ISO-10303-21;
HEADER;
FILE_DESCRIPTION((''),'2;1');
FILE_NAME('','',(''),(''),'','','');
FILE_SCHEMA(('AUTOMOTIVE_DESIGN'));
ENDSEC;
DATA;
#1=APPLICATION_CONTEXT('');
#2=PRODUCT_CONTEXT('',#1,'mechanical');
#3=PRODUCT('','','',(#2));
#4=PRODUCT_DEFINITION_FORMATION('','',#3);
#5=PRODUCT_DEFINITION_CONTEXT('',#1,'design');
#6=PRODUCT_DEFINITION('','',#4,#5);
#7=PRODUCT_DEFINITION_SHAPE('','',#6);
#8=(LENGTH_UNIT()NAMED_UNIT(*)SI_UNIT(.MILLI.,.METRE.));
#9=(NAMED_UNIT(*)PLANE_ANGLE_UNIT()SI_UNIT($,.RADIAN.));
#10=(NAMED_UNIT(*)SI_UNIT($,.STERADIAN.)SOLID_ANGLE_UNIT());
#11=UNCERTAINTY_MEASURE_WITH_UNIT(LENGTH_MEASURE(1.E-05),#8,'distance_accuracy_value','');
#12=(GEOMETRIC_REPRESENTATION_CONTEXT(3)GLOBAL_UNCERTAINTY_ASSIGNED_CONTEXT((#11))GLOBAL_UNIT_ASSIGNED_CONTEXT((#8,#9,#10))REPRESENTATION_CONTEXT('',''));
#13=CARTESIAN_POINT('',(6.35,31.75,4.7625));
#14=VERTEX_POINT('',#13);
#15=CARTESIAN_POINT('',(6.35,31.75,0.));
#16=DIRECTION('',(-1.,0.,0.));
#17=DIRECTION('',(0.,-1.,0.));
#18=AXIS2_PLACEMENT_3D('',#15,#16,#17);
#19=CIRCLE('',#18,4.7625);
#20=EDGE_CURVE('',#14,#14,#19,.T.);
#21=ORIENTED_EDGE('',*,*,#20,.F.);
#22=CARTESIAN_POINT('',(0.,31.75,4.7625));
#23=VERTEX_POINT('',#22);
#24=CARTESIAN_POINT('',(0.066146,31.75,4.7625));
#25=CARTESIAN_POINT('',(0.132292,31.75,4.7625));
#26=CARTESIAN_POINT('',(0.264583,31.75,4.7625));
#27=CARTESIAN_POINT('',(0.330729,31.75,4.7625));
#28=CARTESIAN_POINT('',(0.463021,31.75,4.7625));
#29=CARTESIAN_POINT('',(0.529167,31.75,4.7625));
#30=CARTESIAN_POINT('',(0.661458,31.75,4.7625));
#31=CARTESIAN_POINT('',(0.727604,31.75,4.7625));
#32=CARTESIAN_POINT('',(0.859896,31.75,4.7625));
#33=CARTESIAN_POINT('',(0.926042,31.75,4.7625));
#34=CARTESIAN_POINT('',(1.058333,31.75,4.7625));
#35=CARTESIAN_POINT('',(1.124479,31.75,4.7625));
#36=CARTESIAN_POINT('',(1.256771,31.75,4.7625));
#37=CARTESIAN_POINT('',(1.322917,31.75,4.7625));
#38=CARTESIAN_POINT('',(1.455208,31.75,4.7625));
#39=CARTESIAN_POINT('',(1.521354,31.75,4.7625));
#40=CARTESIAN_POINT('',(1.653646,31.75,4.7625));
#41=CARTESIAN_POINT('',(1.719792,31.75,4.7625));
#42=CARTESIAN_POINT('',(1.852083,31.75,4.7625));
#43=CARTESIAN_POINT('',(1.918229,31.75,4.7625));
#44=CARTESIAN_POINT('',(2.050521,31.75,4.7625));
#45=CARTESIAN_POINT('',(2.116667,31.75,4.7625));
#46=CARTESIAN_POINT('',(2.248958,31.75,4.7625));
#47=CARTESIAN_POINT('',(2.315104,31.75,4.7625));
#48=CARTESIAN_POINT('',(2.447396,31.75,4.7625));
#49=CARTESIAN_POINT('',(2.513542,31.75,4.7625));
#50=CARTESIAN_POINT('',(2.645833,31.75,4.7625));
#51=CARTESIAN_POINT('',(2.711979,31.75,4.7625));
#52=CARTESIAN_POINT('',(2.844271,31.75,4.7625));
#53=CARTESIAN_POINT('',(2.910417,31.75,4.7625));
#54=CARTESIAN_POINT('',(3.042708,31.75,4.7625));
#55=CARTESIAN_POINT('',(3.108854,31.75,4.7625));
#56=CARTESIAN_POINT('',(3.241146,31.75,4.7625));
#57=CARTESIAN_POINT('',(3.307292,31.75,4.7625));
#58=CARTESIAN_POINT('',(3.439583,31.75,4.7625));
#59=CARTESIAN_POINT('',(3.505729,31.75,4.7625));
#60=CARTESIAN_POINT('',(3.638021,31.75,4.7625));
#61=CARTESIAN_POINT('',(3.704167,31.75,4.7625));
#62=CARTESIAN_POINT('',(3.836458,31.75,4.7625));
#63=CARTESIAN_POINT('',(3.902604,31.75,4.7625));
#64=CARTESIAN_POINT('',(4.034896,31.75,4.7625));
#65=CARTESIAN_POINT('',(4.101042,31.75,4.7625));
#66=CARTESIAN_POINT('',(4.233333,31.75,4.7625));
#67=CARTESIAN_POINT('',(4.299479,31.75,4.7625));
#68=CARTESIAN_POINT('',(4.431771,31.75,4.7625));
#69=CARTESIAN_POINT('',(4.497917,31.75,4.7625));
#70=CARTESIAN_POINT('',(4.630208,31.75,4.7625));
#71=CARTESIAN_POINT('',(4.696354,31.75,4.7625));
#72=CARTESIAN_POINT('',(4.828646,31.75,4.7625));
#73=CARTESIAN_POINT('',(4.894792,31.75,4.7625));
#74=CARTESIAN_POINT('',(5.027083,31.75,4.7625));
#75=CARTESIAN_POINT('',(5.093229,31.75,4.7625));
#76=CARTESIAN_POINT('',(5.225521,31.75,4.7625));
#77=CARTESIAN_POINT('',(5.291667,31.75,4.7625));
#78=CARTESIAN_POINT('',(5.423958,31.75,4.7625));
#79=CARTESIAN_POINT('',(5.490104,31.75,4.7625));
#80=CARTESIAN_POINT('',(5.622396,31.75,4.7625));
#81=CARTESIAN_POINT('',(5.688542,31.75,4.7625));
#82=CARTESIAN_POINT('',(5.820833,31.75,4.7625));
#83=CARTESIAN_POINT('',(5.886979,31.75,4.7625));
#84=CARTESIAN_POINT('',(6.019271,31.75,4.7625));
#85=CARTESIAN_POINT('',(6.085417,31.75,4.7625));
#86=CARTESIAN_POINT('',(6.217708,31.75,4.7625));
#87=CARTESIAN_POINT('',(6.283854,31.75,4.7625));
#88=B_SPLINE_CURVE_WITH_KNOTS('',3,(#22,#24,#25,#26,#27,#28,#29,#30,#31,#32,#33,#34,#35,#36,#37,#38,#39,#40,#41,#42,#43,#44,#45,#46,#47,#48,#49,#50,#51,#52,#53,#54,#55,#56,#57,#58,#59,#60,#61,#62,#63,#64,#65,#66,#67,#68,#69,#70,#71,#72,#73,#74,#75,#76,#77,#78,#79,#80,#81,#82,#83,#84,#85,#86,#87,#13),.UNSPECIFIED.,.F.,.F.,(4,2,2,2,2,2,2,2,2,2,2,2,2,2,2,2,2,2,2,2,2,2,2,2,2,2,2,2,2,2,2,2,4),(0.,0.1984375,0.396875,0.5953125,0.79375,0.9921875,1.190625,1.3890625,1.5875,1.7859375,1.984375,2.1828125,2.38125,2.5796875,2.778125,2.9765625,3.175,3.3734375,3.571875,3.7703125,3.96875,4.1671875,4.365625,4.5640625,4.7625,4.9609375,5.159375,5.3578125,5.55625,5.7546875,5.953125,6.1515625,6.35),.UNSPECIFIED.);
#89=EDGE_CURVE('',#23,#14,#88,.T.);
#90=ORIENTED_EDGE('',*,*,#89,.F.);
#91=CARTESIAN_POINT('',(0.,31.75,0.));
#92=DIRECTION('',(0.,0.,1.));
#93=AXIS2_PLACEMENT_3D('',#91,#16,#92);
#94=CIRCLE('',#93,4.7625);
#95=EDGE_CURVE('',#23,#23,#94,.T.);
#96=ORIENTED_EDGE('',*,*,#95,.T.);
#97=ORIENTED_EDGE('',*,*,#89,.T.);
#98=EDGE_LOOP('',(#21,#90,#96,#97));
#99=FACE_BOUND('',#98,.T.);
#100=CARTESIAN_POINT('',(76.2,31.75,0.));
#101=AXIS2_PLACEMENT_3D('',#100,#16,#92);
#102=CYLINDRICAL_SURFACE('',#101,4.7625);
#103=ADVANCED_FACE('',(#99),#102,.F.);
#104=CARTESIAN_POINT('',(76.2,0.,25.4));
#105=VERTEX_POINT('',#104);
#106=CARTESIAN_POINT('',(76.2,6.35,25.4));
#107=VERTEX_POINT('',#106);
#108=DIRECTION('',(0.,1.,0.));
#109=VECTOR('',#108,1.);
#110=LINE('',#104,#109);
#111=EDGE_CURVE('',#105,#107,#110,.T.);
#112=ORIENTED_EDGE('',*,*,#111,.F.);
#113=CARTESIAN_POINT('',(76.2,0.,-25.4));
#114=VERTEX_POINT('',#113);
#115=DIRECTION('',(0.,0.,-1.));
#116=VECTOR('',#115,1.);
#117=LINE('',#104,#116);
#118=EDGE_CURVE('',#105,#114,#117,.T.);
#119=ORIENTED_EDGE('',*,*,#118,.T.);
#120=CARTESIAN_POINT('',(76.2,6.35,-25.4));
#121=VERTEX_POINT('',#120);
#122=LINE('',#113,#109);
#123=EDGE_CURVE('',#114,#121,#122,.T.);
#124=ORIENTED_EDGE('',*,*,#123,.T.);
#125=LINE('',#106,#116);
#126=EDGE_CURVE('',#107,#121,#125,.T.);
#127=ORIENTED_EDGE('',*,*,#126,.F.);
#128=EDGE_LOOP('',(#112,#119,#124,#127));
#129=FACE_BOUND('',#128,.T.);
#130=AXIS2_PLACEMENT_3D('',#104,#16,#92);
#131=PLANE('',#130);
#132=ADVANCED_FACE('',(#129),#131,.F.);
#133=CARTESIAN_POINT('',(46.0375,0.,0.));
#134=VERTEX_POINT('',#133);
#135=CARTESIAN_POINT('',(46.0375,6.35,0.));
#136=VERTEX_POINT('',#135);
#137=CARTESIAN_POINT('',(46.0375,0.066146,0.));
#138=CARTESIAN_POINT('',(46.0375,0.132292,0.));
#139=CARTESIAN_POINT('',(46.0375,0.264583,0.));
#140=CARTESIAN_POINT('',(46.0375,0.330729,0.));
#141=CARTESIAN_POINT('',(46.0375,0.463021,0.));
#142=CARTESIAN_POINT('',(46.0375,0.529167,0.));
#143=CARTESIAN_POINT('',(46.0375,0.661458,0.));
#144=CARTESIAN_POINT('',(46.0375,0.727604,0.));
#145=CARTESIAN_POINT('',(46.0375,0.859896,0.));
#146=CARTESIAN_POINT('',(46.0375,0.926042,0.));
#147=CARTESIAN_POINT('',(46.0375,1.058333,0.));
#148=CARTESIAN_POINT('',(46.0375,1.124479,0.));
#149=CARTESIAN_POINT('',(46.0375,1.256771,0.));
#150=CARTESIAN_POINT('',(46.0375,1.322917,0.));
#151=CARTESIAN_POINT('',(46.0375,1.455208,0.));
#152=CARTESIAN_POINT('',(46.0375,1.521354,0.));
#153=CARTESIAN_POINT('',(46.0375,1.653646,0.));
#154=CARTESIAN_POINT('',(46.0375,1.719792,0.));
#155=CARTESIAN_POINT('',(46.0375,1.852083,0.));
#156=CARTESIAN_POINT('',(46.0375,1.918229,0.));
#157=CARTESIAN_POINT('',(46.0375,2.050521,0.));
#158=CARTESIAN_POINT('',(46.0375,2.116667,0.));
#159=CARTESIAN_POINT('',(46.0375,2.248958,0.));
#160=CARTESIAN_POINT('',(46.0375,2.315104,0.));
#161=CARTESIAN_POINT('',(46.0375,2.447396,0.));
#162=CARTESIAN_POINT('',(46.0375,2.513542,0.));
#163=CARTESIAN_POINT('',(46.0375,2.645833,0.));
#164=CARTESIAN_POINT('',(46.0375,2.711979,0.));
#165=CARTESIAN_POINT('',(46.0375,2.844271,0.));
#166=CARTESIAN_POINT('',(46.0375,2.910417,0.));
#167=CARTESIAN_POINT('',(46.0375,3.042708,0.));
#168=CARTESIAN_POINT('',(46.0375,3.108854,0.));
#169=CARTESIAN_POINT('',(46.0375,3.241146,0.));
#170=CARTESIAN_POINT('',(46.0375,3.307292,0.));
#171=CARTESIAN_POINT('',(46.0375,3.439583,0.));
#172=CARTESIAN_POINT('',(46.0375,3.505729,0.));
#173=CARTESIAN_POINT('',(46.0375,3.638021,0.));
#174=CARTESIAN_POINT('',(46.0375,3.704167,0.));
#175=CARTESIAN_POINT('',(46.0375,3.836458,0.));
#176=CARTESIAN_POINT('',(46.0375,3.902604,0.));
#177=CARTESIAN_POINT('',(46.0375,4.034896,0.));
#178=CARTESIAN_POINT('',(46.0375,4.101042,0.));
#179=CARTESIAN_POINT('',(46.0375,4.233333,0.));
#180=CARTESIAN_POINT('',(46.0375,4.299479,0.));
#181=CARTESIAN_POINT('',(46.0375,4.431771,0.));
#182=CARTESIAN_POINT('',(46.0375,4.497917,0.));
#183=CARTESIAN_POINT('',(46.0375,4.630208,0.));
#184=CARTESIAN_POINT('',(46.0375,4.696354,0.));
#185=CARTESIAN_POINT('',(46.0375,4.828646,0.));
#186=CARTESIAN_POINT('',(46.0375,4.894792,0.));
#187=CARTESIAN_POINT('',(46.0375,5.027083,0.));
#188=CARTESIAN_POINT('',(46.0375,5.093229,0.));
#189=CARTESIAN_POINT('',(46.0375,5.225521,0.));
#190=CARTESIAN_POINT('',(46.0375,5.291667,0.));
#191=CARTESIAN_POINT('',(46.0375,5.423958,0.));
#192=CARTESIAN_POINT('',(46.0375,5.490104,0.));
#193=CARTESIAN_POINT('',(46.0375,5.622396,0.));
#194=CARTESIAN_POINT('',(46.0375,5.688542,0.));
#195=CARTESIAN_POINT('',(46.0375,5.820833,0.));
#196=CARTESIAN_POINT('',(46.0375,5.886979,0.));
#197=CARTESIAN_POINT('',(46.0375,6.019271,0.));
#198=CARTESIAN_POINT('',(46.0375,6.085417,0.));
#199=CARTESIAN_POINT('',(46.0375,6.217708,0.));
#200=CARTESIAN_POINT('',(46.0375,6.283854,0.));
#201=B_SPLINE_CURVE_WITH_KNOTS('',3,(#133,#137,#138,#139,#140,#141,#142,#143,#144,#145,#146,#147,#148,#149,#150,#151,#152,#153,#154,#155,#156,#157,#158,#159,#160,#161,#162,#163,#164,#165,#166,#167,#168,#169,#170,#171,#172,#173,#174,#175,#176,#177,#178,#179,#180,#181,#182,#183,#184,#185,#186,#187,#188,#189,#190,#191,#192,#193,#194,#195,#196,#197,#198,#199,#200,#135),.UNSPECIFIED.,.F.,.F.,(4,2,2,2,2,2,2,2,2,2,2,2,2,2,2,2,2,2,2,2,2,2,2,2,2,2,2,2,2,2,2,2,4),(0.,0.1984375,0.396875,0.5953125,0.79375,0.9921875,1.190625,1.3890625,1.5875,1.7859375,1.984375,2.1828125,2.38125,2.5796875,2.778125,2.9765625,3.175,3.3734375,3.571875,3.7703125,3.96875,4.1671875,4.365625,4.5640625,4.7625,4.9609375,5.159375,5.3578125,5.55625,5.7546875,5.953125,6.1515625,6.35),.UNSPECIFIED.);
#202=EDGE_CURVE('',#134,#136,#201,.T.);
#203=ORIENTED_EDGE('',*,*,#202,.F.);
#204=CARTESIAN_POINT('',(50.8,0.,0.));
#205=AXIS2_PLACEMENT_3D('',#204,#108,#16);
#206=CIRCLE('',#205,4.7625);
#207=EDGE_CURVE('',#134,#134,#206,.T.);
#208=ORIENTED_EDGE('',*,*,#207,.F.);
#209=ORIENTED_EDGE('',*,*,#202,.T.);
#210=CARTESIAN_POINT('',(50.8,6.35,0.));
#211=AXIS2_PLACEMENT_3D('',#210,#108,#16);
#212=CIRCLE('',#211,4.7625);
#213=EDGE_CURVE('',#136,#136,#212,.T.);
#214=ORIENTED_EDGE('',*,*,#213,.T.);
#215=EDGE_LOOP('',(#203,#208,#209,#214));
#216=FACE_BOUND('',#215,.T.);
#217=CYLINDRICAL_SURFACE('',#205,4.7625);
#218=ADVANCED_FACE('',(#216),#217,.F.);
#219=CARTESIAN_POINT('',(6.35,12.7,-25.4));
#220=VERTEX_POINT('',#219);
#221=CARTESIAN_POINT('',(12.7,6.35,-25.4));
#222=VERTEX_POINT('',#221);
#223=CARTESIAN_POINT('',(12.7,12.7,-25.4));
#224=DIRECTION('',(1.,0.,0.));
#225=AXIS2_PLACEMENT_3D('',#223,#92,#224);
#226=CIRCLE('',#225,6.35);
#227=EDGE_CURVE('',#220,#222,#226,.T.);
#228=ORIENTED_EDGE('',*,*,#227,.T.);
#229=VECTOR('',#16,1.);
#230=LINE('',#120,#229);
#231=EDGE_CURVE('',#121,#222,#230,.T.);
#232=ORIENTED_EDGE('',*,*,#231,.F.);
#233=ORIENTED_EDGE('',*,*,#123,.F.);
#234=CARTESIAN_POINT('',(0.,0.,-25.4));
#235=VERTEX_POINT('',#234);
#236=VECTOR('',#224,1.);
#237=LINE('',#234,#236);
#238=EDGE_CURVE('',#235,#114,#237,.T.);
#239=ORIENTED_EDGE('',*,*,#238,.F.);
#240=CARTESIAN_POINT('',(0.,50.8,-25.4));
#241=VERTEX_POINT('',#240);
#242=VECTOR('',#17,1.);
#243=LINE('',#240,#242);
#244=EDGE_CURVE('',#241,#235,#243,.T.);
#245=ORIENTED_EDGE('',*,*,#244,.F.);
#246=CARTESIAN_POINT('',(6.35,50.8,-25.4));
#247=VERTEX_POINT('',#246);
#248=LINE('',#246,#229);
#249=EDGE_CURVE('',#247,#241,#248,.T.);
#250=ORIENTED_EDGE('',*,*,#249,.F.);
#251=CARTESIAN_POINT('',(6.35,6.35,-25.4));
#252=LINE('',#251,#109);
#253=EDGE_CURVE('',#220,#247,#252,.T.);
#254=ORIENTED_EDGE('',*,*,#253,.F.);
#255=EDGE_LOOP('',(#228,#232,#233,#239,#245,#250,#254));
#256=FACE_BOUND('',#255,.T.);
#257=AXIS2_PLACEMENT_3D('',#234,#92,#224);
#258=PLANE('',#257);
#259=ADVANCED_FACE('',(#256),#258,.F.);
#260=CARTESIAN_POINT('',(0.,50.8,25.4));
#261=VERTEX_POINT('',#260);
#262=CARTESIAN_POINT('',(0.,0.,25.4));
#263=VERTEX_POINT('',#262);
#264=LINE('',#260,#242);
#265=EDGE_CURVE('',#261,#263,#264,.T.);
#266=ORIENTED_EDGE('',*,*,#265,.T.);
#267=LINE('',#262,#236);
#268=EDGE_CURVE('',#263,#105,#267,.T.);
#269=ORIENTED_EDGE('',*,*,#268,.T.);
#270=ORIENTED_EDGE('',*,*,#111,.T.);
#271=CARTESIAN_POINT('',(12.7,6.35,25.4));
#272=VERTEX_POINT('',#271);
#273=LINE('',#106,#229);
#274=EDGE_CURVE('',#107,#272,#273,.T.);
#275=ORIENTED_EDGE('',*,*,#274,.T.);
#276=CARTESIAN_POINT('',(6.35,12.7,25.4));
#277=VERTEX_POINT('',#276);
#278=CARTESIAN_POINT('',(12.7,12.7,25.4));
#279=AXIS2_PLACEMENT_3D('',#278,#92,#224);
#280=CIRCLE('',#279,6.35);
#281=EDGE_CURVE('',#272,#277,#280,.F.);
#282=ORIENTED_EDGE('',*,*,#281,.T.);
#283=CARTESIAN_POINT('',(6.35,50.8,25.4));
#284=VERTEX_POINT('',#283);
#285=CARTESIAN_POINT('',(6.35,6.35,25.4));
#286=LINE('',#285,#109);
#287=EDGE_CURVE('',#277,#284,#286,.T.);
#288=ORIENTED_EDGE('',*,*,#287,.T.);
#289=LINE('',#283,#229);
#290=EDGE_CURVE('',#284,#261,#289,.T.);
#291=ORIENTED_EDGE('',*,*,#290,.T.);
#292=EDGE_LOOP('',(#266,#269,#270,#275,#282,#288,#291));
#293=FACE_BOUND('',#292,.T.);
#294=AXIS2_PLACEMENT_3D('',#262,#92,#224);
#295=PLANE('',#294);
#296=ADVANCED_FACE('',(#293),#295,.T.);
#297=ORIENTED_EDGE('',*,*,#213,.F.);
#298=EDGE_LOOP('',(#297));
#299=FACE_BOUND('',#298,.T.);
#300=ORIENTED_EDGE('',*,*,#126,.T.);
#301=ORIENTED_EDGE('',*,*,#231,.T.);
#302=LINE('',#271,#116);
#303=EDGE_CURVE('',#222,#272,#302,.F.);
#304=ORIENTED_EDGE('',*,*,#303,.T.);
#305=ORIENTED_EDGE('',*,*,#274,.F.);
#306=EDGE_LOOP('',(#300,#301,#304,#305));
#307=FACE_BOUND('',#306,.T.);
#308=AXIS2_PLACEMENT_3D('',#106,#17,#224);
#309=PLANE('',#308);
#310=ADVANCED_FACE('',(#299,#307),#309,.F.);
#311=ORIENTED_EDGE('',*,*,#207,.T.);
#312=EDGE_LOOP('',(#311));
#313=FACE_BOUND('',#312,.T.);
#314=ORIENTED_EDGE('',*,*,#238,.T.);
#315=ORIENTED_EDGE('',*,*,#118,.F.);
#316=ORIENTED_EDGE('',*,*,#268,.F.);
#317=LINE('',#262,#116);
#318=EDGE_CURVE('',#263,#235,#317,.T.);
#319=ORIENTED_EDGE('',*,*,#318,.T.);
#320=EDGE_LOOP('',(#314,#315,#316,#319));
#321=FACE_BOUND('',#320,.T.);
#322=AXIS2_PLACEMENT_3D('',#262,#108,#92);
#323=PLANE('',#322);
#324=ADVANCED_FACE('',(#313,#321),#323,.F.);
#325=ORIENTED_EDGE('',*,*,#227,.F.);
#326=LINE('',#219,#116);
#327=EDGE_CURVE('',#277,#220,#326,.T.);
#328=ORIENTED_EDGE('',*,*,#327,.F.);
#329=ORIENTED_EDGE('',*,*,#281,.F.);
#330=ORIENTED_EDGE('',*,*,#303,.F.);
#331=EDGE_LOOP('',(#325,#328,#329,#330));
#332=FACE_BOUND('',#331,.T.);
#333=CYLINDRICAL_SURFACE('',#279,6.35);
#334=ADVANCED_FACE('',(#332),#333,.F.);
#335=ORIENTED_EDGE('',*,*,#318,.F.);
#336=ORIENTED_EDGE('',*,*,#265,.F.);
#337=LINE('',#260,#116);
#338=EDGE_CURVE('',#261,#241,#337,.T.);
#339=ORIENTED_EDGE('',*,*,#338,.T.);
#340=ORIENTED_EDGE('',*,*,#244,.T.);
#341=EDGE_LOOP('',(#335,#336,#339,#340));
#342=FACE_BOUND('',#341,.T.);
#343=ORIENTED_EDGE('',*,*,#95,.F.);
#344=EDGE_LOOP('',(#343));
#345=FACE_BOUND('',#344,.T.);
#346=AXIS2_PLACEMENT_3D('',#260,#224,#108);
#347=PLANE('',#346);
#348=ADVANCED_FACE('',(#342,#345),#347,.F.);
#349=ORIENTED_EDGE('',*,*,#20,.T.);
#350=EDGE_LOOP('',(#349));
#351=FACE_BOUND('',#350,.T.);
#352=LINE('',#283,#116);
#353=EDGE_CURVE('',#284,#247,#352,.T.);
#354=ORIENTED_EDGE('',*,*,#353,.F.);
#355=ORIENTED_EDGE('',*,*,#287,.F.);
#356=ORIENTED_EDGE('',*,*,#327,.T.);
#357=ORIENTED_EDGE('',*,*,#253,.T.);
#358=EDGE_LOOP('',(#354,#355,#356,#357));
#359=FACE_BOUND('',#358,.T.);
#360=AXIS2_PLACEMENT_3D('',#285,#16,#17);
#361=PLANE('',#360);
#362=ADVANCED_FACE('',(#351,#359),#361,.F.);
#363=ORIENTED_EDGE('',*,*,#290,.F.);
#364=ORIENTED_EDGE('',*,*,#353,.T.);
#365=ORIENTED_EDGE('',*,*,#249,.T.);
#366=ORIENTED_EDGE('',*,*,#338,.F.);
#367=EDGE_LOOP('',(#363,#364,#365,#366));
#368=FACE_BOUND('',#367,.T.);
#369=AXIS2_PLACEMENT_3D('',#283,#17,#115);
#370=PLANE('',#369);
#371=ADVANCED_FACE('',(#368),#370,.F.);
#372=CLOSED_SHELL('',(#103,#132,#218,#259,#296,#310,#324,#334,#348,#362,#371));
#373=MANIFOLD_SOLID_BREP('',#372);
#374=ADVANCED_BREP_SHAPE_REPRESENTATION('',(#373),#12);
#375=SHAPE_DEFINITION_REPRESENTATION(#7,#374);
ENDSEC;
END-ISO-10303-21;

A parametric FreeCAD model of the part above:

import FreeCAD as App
import Part
import Sketcher

V = App.Vector
Q = App.Units.Quantity


def edges_at(feature, points):
    """Names of the edges that pass closest to the given points."""
    edges = feature.Shape.Edges
    near = lambda p: min(range(len(edges)), key=lambda i: edges[i].distToShape(Part.Vertex(*p))[0])
    return sorted({f"Edge{near(p) + 1}" for p in points})


def add_polygon(sketch, points):
    """Adds a closed chain of lines whose ends are joined by coincident constraints."""
    first, n = sketch.GeometryCount, len(points)
    for a, b in zip(points, points[1:] + points[:1]):
        sketch.addGeometry(Part.LineSegment(App.Vector(*a, 0), App.Vector(*b, 0)), False)
    for i in range(n):
        sketch.addConstraint(Sketcher.Constraint("Coincident", first + i, 2, first + (i + 1) % n, 1))

doc = App.newDocument("Part")
body = doc.addObject("PartDesign::Body", "Body")

sketch1 = body.newObject("Sketcher::SketchObject", "Sketch")
sketch1.AttachmentSupport = (doc.getObject("XY_Plane"), [""])
sketch1.MapMode = "FlatFace"
add_polygon(sketch1, [(0, 0), (76, 0), (76, 6), (6, 6), (6, 51), (0, 51)])
sketch1.addConstraint([
    Sketcher.Constraint("Horizontal", 0),
    Sketcher.Constraint("Vertical", 1),
    Sketcher.Constraint("Horizontal", 2),
    Sketcher.Constraint("Vertical", 3),
    Sketcher.Constraint("Horizontal", 4),
    Sketcher.Constraint("Vertical", 5),
    Sketcher.Constraint("Coincident", 5, 2, -1, 1),
    Sketcher.Constraint("Equal", 4, 1),
    Sketcher.Constraint("DistanceX", 0, 1, 0, 2, Q("3 in")),
    Sketcher.Constraint("DistanceY", 5, 2, 5, 1, Q("2 in")),
    Sketcher.Constraint("DistanceX", 2, 2, 2, 1, Q("2.75 in")),
])
pad1 = body.newObject("PartDesign::Pad", "Pad")
pad1.Profile = sketch1
pad1.Length = Q("2 in")
pad1.Midplane = True
doc.recompute()

fillet = body.newObject("PartDesign::Fillet", "Fillet")
fillet.Base = (pad1, edges_at(pad1, [(6.35, 6.35, 0)]))
fillet.Radius = Q("0.25 in")

sketch2 = body.newObject("Sketcher::SketchObject", "Sketch001")
sketch2.AttachmentSupport = (doc.getObject("XZ_Plane"), [""])
sketch2.MapMode = "FlatFace"
sketch2.AttachmentOffset = App.Placement(V(0, 0, -0.25 * 25.4), App.Rotation())
sketch2.addGeometry(Part.Circle(V(50.8, 0, 0), V(0, 0, 1), 4.8), False)
sketch2.addConstraint([
    Sketcher.Constraint("PointOnObject", 0, 3, -1),
    Sketcher.Constraint("Diameter", 0, Q("0.375 in")),
    Sketcher.Constraint("DistanceX", -1, 1, 0, 3, Q("2 in")),
])
pocket1 = body.newObject("PartDesign::Pocket", "Pocket")
pocket1.Profile = sketch2
pocket1.Type = "ThroughAll"
pocket1.Reversed = True

sketch3 = body.newObject("Sketcher::SketchObject", "Sketch002")
sketch3.AttachmentSupport = (doc.getObject("YZ_Plane"), [""])
sketch3.MapMode = "FlatFace"
sketch3.addGeometry(Part.Circle(V(31.8, 0, 0), V(0, 0, 1), 4.8), False)
sketch3.addConstraint([
    Sketcher.Constraint("PointOnObject", 0, 3, -1),
    Sketcher.Constraint("Diameter", 0, Q("0.375 in")),
    Sketcher.Constraint("DistanceX", -1, 1, 0, 3, Q("1.25 in")),
])
pocket2 = body.newObject("PartDesign::Pocket", "Pocket001")
pocket2.Profile = sketch3
pocket2.Type = "ThroughAll"
pocket2.Reversed = True

doc.recompute()
